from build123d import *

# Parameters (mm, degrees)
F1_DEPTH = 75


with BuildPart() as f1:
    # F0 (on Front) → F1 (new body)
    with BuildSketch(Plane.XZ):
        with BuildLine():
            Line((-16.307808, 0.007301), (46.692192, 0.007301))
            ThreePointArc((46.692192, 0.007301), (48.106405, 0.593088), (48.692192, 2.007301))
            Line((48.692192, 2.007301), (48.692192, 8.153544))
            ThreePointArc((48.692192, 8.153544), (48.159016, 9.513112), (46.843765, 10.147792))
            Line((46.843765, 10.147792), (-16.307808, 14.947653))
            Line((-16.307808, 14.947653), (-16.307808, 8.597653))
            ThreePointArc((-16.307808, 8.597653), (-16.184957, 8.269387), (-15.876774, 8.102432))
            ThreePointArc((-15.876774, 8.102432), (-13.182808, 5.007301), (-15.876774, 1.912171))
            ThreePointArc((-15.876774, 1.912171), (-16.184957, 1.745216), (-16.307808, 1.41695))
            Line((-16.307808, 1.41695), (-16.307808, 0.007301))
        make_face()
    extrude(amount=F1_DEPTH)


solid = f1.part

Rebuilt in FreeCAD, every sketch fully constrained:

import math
import FreeCAD as App
import Part
import Sketcher
from FreeCAD import Vector
Q = App.Units.Quantity

doc = App.newDocument("Part")
params = doc.addObject("Spreadsheet::Sheet", "Params")
for row, (alias, value) in enumerate([
    ("sketch1_radius", "2.000002 mm"),
    ("sketch1_radius2", "0.500001 mm"),
    ("sketch1_width", "63 mm"),
    ("sketch1_height", "6.35 mm"),
    ("pad1_length", "75 mm"),
], start=1):
    params.set(f"A{row}", alias)
    params.set(f"B{row}", "=" + value)
    params.setAlias(f"B{row}", alias)

body = doc.addObject("PartDesign::Body", "Body")

# Sketch on XZ plane
sketch1 = doc.addObject("Sketcher::SketchObject", "Sketch")
body.addObject(sketch1)
sketch1.AttachmentSupport = (doc.XZ_Plane, [""])
sketch1.MapMode = "FlatFace"
sketch1.addGeometry([
    Part.LineSegment(Vector(-16.3, 0, 0), Vector(46.7, 0, 0)),  # 0
    Part.ArcOfCircle(Part.Circle(Vector(46.7, 2, 0), Vector(0, 0, 1), 2), math.radians(-90), math.radians(0)),  # 1
    Part.LineSegment(Vector(48.7, 2, 0), Vector(48.7, 8.2, 0)),  # 2
    Part.ArcOfCircle(Part.Circle(Vector(46.7, 8.2, 0), Vector(0, 0, 1), 2), math.radians(0), math.radians(86)),  # 3
    Part.LineSegment(Vector(46.8, 10.1, 0), Vector(-16.3, 14.9, 0)),  # 4
    Part.LineSegment(Vector(-16.3, 14.9, 0), Vector(-16.3, 8.6, 0)),  # 5
    Part.ArcOfCircle(Part.Circle(Vector(-15.8, 8.6, 0), Vector(0, 0, 1), 0.5), math.radians(-180), math.radians(-98)),  # 6
    Part.ArcOfCircle(Part.Circle(Vector(-16.3, 5, 0), Vector(0, 0, 1), 3.1), math.radians(-82), math.radians(82)),  # 7
    Part.ArcOfCircle(Part.Circle(Vector(-15.8, 1.4, 0), Vector(0, 0, 1), 0.5), math.radians(98), math.radians(180)),  # 8
    Part.LineSegment(Vector(-16.3, 1.4, 0), Vector(-16.3, 0, 0)),  # 9
], False)
sketch1.addConstraint([
    Sketcher.Constraint("Tangent", 0, 2, 1, 1),
    Sketcher.Constraint("Tangent", 1, 2, 2, 1),
    Sketcher.Constraint("Tangent", 2, 2, 3, 1),
    Sketcher.Constraint("Tangent", 3, 2, 4, 1),
    Sketcher.Constraint("Coincident", 4, 2, 5, 1),
    Sketcher.Constraint("Tangent", 5, 2, 6, 1),
    Sketcher.Constraint("Coincident", 6, 2, 7, 2),
    Sketcher.Constraint("Coincident", 7, 1, 8, 1),
    Sketcher.Constraint("Tangent", 8, 2, 9, 1),
    Sketcher.Constraint("Coincident", 9, 2, 0, 1),
    Sketcher.Constraint("Horizontal", 0),
    Sketcher.Constraint("Vertical", 2),
    Sketcher.Constraint("Vertical", 5),
    Sketcher.Constraint("Vertical", 9),
    Sketcher.Constraint("Equal", 1, 3),
    Sketcher.Constraint("Equal", 6, 8),
    Sketcher.Constraint("Vertical", 6, 3, 8, 3),
    Sketcher.Constraint("Vertical", 7, 3, 4, 2),
    Sketcher.Constraint("Vertical", 6, 2, 7, 1),
    Sketcher.Constraint("Radius", 1, Q("2.000002 mm")),
    Sketcher.Constraint("Radius", 6, Q("0.500001 mm")),
    Sketcher.Constraint("DistanceX", 0, 1, 0, 2, Q("63 mm")),
    Sketcher.Constraint("Radius", 7, Q("3.125 mm")),
    Sketcher.Constraint("DistanceY", 1, 3, 7, 3, Q("2.999999 mm")),
    Sketcher.Constraint("DistanceY", 5, 2, 5, 1, Q("6.35 mm")),
    Sketcher.Constraint("DistanceY", -1, 1, 7, 3, Q("5.007301 mm")),
    Sketcher.Constraint("Distance", 4, Q("63.333718 mm")),
    Sketcher.Constraint("DistanceX", -1, 1, 1, 3, Q("46.69219 mm")),
    Sketcher.Constraint("DistanceY", -1, 1, 7, 1, Q("1.912171 mm")),
])
sketch1.setExpression("Constraints[19]", "Params.sketch1_radius")
sketch1.setExpression("Constraints[20]", "Params.sketch1_radius2")
sketch1.setExpression("Constraints[21]", "Params.sketch1_width")
sketch1.setExpression("Constraints[24]", "Params.sketch1_height")
pad1 = doc.addObject("PartDesign::Pad", "Pad")
body.addObject(pad1)
pad1.Profile = sketch1
pad1.setExpression("Length", "Params.pad1_length")

doc.recompute()
